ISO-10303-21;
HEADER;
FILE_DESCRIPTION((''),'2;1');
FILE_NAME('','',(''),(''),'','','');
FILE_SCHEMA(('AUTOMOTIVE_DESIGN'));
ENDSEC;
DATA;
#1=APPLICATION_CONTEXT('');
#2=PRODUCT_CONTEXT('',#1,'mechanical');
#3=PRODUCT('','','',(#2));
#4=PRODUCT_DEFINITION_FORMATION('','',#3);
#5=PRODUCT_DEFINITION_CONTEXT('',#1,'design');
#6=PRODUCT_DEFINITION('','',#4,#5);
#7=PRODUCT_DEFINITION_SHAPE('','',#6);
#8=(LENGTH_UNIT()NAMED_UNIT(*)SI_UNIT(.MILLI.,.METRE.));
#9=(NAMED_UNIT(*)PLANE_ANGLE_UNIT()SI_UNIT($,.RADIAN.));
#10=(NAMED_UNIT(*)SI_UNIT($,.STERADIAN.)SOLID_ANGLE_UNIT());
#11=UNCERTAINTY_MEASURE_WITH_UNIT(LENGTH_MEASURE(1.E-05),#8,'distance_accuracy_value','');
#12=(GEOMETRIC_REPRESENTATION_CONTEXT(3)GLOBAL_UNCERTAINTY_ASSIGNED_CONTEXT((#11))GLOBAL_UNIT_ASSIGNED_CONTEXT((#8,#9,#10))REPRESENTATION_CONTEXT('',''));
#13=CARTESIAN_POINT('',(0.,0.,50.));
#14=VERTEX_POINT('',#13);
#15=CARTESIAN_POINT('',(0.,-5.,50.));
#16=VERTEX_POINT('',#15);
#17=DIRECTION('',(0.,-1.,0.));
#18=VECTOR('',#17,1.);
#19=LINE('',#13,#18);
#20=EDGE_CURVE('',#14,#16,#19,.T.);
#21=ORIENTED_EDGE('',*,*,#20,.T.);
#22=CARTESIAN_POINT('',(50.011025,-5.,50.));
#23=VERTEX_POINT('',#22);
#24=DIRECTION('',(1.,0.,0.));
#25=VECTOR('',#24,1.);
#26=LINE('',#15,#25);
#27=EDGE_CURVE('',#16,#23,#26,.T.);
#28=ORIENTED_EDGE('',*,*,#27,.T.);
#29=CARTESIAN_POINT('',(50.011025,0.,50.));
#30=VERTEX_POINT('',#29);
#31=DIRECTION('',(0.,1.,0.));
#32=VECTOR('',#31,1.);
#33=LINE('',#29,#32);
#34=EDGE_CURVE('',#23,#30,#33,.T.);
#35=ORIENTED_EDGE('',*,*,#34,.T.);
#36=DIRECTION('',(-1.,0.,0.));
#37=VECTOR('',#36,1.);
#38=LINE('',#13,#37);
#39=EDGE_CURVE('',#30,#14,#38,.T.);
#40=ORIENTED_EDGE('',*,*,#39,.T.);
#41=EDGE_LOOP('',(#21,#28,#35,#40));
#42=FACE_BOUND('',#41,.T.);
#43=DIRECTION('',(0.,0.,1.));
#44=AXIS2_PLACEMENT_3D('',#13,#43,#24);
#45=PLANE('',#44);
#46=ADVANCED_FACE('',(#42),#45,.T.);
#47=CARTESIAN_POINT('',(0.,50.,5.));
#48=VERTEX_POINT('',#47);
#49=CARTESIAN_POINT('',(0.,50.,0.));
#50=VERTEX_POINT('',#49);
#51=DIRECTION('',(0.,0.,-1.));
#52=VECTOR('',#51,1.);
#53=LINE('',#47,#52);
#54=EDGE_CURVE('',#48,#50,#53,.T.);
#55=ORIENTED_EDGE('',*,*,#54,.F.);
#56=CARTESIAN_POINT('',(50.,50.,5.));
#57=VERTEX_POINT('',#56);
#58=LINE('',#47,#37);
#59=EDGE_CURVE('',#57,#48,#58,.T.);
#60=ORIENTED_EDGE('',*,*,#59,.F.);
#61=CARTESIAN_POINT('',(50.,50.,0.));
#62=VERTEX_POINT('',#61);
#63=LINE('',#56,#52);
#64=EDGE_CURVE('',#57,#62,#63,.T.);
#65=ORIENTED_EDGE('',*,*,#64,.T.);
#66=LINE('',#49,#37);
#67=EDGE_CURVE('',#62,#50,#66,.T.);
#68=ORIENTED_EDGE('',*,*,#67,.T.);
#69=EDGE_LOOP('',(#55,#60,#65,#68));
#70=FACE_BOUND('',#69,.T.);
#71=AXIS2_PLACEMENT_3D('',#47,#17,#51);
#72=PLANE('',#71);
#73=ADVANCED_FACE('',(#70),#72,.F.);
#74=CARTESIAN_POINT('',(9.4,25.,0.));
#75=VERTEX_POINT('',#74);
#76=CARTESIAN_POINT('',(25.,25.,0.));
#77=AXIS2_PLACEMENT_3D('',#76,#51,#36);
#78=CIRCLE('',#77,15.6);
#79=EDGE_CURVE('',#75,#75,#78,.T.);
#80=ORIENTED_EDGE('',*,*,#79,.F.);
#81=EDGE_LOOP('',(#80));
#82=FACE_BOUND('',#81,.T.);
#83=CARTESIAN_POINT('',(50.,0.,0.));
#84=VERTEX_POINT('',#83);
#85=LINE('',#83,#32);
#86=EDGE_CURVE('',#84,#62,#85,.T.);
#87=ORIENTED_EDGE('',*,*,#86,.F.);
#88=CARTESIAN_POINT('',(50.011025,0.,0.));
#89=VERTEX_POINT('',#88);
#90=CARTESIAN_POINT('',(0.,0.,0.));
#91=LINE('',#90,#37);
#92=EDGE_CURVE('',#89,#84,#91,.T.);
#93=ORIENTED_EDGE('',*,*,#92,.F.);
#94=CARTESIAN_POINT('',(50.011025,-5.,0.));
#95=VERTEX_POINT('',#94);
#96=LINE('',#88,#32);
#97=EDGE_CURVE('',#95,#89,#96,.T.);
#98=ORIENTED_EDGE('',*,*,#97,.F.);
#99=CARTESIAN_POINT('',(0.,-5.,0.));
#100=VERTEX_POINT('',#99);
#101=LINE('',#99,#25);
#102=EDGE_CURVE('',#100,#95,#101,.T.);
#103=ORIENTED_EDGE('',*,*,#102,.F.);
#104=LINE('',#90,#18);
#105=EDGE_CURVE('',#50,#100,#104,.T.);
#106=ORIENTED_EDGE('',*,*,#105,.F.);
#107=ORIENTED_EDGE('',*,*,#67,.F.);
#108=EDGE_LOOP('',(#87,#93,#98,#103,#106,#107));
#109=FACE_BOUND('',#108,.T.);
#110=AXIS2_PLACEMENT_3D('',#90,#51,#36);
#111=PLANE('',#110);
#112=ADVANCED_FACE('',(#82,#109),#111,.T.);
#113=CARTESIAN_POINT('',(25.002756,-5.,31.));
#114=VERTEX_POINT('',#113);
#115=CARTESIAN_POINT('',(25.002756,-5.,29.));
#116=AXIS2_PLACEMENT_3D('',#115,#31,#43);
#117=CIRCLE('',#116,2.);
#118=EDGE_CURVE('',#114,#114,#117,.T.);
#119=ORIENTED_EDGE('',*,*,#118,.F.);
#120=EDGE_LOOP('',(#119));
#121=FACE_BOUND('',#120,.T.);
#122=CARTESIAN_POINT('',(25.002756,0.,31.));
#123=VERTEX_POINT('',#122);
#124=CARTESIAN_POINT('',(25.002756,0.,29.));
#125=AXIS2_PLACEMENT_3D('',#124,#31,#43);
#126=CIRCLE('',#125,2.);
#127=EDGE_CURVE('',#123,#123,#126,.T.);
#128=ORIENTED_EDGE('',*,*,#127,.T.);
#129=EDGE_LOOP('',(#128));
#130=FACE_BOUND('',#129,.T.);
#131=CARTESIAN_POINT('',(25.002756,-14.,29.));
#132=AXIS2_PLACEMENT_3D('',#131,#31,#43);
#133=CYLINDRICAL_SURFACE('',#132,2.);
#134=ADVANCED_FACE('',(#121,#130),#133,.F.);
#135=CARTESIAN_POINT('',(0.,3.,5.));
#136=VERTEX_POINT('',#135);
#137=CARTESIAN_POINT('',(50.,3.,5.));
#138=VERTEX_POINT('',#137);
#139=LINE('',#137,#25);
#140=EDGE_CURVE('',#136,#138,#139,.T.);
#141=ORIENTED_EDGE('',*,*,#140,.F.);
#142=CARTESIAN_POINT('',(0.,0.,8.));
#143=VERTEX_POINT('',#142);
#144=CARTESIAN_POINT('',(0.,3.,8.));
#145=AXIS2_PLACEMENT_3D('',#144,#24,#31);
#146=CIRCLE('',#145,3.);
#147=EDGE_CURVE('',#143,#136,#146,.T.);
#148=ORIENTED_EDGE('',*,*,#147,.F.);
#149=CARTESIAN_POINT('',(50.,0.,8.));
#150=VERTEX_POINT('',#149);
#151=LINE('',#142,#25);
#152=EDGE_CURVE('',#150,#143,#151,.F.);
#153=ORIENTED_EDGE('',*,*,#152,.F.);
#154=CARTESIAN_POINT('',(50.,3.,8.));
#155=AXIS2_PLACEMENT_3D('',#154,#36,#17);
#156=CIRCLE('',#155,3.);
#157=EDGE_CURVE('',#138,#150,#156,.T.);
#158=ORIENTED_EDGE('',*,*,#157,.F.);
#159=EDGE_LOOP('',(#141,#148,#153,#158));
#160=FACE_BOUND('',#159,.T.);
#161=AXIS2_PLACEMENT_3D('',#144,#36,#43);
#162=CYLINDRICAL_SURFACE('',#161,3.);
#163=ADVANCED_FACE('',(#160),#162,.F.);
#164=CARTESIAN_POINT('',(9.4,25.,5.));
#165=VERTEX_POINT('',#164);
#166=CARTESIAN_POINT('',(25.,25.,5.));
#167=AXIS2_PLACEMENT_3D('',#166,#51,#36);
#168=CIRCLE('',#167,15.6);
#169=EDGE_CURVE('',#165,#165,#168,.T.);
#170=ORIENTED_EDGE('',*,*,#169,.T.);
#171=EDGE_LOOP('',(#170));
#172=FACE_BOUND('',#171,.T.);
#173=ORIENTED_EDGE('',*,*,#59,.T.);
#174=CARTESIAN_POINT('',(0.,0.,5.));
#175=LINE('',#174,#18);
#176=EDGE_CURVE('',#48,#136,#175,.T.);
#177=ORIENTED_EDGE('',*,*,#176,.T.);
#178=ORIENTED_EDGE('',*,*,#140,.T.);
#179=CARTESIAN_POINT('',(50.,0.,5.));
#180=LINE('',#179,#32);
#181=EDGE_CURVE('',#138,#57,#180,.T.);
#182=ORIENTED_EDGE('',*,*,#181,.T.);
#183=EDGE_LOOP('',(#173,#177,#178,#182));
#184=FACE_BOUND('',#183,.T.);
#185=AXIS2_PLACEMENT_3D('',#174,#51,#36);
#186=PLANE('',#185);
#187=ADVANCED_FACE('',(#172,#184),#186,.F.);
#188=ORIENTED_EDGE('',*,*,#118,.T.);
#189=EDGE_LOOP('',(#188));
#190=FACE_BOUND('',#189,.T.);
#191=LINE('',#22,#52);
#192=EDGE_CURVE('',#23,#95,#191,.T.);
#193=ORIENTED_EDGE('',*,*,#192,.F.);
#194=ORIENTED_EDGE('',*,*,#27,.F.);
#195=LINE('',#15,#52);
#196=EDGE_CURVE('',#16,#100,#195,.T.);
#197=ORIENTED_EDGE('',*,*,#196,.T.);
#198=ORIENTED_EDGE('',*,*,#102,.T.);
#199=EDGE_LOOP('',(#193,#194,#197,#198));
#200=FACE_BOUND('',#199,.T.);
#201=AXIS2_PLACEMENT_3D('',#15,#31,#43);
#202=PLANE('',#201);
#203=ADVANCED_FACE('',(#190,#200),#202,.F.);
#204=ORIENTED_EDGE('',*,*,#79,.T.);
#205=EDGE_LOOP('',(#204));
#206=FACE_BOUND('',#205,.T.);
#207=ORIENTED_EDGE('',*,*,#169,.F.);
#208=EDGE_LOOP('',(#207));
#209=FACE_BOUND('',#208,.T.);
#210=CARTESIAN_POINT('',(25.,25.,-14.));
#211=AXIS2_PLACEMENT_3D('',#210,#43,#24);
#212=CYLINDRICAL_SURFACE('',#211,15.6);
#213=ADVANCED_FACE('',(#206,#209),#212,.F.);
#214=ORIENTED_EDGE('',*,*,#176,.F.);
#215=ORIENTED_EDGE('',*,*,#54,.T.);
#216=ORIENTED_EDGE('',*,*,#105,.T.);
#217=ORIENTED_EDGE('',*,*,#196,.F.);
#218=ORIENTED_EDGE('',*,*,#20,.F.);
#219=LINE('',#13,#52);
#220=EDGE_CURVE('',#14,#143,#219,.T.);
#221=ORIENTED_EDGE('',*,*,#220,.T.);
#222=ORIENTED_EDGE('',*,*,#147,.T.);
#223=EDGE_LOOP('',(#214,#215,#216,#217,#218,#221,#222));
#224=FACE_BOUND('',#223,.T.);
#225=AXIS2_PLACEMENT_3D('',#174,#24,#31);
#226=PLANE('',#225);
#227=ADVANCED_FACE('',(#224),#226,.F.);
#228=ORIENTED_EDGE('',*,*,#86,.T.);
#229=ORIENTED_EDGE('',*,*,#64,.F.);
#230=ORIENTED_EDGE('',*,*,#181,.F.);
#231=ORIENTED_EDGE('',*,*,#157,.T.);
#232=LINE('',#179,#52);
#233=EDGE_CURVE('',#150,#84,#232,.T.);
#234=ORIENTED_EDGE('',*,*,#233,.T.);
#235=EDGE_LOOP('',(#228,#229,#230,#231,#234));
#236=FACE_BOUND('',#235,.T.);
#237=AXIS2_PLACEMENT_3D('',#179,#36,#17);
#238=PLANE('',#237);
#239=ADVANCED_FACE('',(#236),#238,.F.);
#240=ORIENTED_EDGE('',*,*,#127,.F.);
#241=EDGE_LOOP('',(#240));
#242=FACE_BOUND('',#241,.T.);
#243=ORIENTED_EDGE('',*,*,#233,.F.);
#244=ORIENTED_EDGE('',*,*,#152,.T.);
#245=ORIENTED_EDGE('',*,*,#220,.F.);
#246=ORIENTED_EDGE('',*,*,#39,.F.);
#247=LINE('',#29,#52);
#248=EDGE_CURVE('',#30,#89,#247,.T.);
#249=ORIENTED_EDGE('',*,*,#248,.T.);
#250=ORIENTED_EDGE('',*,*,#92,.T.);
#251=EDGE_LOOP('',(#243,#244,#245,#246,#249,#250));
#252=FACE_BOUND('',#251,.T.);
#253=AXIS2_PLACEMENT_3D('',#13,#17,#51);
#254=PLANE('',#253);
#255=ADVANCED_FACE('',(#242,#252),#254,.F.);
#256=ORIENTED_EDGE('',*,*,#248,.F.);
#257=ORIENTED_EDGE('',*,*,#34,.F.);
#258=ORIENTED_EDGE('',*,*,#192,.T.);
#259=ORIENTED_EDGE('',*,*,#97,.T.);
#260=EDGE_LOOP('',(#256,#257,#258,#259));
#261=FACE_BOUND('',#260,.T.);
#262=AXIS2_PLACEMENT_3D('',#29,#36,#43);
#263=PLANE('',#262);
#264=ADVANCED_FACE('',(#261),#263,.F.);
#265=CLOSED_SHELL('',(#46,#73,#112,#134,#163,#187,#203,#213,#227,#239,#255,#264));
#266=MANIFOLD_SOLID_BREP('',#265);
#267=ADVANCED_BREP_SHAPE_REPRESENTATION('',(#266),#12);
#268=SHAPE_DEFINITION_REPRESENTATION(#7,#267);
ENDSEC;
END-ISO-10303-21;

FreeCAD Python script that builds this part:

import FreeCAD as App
import Part
import Sketcher

V = App.Vector
Q = App.Units.Quantity


def edges_at(feature, points):
    """Names of the edges that pass closest to the given points."""
    edges = feature.Shape.Edges
    near = lambda p: min(range(len(edges)), key=lambda i: edges[i].distToShape(Part.Vertex(*p))[0])
    return sorted({f"Edge{near(p) + 1}" for p in points})


def add_polygon(sketch, points):
    """Adds a closed chain of lines whose ends are joined by coincident constraints."""
    first, n = sketch.GeometryCount, len(points)
    for a, b in zip(points, points[1:] + points[:1]):
        sketch.addGeometry(Part.LineSegment(App.Vector(*a, 0), App.Vector(*b, 0)), False)
    for i in range(n):
        sketch.addConstraint(Sketcher.Constraint("Coincident", first + i, 2, first + (i + 1) % n, 1))

doc = App.newDocument("Part")
body = doc.addObject("PartDesign::Body", "Body")

# Sketch on XY plane
sketch1 = body.newObject("Sketcher::SketchObject", "Sketch")
sketch1.AttachmentSupport = (doc.getObject("XY_Plane"), [""])
sketch1.MapMode = "FlatFace"
add_polygon(sketch1, [(0, 50), (0, 0), (50, 0), (50, 50)])  # lines 0-3
sketch1.addConstraint([
    Sketcher.Constraint("Vertical", 0),
    Sketcher.Constraint("Horizontal", 1),
    Sketcher.Constraint("Vertical", 2),
    Sketcher.Constraint("Horizontal", 3),
    Sketcher.Constraint("Coincident", 0, 2, -1, 1),
    Sketcher.Constraint("Equal", 3, 0),
    Sketcher.Constraint("DistanceX", 1, 1, 1, 2, Q("50 mm")),
])
pad1 = body.newObject("PartDesign::Pad", "Pad")
pad1.Profile = sketch1
pad1.Length = 5

# Sketch on XY plane
sketch2 = body.newObject("Sketcher::SketchObject", "Sketch001")
sketch2.AttachmentSupport = (doc.getObject("XY_Plane"), [""])
sketch2.MapMode = "FlatFace"
sketch2.addGeometry(Part.Circle(V(25, 25, 0), V(0, 0, 1), 15.6), False)
sketch2.addConstraint([
    Sketcher.Constraint("Diameter", 0, Q("31.2 mm")),
    Sketcher.Constraint("DistanceX", -1, 1, 0, 3, Q("25 mm")),
    Sketcher.Constraint("DistanceY", -1, 1, 0, 3, Q("25 mm")),
])
pocket1 = body.newObject("PartDesign::Pocket", "Pocket")
pocket1.Profile = sketch2
pocket1.Type = "ThroughAll"
pocket1.Midplane = True

# Sketch on XY plane
sketch3 = body.newObject("Sketcher::SketchObject", "Sketch002")
sketch3.AttachmentSupport = (doc.getObject("XY_Plane"), [""])
sketch3.MapMode = "FlatFace"
add_polygon(sketch3, [(0, 0), (0, -5), (50.011025, -5), (50.011025, 0)])  # lines 0-3
sketch3.addConstraint([
    Sketcher.Constraint("Vertical", 0),
    Sketcher.Constraint("Horizontal", 1),
    Sketcher.Constraint("Vertical", 2),
    Sketcher.Constraint("Horizontal", 3),
    Sketcher.Constraint("Coincident", 3, 2, -1, 1),
    Sketcher.Constraint("DistanceY", 0, 2, 0, 1, Q("5 mm")),
    Sketcher.Constraint("DistanceX", 1, 1, 1, 2, Q("50.011025 mm")),
])
pad2 = body.newObject("PartDesign::Pad", "Pad001")
pad2.Profile = sketch3
pad2.Length = 50
doc.recompute()

fillet = body.newObject("PartDesign::Fillet", "Fillet")
fillet.Base = (pad2, edges_at(pad2, [(25, 0, 5)]))
fillet.Radius = 3

# Sketch on XZ plane
sketch4 = body.newObject("Sketcher::SketchObject", "Sketch003")
sketch4.AttachmentSupport = (doc.getObject("XZ_Plane"), [""])
sketch4.MapMode = "FlatFace"
sketch4.addGeometry(Part.Circle(V(25.002756, 29, 0), V(0, 0, 1), 2), False)
sketch4.addConstraint([
    Sketcher.Constraint("Diameter", 0, Q("4 mm")),
    Sketcher.Constraint("DistanceY", -1, 1, 0, 3, Q("29 mm")),
    Sketcher.Constraint("DistanceX", -1, 1, 0, 3, Q("25.002756 mm")),
])
pocket2 = body.newObject("PartDesign::Pocket", "Pocket001")
pocket2.Profile = sketch4
pocket2.Length = 14
pocket2.Reversed = True

doc.recompute()
